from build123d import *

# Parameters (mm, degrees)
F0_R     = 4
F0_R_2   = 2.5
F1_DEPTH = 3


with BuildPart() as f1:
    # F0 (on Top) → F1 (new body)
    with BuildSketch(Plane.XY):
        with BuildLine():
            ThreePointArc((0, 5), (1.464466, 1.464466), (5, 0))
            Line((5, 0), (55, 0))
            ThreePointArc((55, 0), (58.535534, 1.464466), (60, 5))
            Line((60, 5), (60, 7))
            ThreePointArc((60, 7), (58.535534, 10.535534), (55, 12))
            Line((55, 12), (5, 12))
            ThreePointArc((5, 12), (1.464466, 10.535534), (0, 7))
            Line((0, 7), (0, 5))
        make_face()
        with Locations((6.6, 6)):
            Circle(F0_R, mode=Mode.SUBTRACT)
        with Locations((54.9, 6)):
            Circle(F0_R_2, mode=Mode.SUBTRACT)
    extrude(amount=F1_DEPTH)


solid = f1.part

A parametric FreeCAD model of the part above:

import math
import FreeCAD as App
import Part
import Sketcher

doc = App.newDocument("Part")
body = doc.addObject("PartDesign::Body", "Body")

sketch1 = body.newObject("Sketcher::SketchObject", "Sketch")
sketch1.AttachmentSupport = (doc.getObject("XY_Plane"), [""])
sketch1.MapMode = "FlatFace"
sketch1.addGeometry([
    Part.ArcOfCircle(Part.Circle(App.Vector(5, 5, 0), App.Vector(0, 0, 1), 5), math.radians(180), math.radians(270)),
    Part.LineSegment(App.Vector(5, 0, 0), App.Vector(55, 0, 0)),
    Part.ArcOfCircle(Part.Circle(App.Vector(55, 5, 0), App.Vector(0, 0, 1), 5), math.radians(-90), math.radians(0)),
    Part.LineSegment(App.Vector(60, 5, 0), App.Vector(60, 7, 0)),
    Part.ArcOfCircle(Part.Circle(App.Vector(55, 7, 0), App.Vector(0, 0, 1), 5), math.radians(0), math.radians(90)),
    Part.LineSegment(App.Vector(55, 12, 0), App.Vector(5, 12, 0)),
    Part.ArcOfCircle(Part.Circle(App.Vector(5, 7, 0), App.Vector(0, 0, 1), 5), math.radians(90), math.radians(180)),
    Part.LineSegment(App.Vector(0, 7, 0), App.Vector(0, 5, 0)),
    Part.Circle(App.Vector(6.6, 6, 0), App.Vector(0, 0, 1), 4),
    Part.Circle(App.Vector(54.9, 6, 0), App.Vector(0, 0, 1), 2.5),
], False)
sketch1.addConstraint([
    Sketcher.Constraint("Tangent", 0, 2, 1, 1),
    Sketcher.Constraint("Tangent", 1, 2, 2, 1),
    Sketcher.Constraint("Tangent", 2, 2, 3, 1),
    Sketcher.Constraint("Tangent", 3, 2, 4, 1),
    Sketcher.Constraint("Tangent", 4, 2, 5, 1),
    Sketcher.Constraint("Tangent", 5, 2, 6, 1),
    Sketcher.Constraint("Tangent", 6, 2, 7, 1),
    Sketcher.Constraint("Tangent", 7, 2, 0, 1),
    Sketcher.Constraint("Horizontal", 1),
    Sketcher.Constraint("Vertical", 3),
    Sketcher.Constraint("Horizontal", 5),
    Sketcher.Constraint("Vertical", 7),
    Sketcher.Constraint("Equal", 0, 2),
    Sketcher.Constraint("Equal", 2, 4),
    Sketcher.Constraint("Equal", 4, 6),
    Sketcher.Constraint("PointOnObject", 0, 2, -1),
    Sketcher.Constraint("PointOnObject", 6, 2, -2),
    Sketcher.Constraint("Horizontal", 8, 3, 9, 3),
    Sketcher.Constraint("Diameter", 8, 8.0),
    Sketcher.Constraint("Diameter", 9, 5.0),
    Sketcher.Constraint("Radius", 0, 5.0),
    Sketcher.Constraint("DistanceX", 1, 1, 1, 2, 50.0),
    Sketcher.Constraint("DistanceY", 3, 1, 3, 2, 2.0),
    Sketcher.Constraint("DistanceY", -1, 1, 8, 3, 6.0),
    Sketcher.Constraint("DistanceX", -1, 1, 8, 3, 6.6),
    Sketcher.Constraint("DistanceX", -1, 1, 9, 3, 54.9),
])
pad1 = body.newObject("PartDesign::Pad", "Pad")
pad1.Profile = sketch1
pad1.Length = 3

doc.recompute()
